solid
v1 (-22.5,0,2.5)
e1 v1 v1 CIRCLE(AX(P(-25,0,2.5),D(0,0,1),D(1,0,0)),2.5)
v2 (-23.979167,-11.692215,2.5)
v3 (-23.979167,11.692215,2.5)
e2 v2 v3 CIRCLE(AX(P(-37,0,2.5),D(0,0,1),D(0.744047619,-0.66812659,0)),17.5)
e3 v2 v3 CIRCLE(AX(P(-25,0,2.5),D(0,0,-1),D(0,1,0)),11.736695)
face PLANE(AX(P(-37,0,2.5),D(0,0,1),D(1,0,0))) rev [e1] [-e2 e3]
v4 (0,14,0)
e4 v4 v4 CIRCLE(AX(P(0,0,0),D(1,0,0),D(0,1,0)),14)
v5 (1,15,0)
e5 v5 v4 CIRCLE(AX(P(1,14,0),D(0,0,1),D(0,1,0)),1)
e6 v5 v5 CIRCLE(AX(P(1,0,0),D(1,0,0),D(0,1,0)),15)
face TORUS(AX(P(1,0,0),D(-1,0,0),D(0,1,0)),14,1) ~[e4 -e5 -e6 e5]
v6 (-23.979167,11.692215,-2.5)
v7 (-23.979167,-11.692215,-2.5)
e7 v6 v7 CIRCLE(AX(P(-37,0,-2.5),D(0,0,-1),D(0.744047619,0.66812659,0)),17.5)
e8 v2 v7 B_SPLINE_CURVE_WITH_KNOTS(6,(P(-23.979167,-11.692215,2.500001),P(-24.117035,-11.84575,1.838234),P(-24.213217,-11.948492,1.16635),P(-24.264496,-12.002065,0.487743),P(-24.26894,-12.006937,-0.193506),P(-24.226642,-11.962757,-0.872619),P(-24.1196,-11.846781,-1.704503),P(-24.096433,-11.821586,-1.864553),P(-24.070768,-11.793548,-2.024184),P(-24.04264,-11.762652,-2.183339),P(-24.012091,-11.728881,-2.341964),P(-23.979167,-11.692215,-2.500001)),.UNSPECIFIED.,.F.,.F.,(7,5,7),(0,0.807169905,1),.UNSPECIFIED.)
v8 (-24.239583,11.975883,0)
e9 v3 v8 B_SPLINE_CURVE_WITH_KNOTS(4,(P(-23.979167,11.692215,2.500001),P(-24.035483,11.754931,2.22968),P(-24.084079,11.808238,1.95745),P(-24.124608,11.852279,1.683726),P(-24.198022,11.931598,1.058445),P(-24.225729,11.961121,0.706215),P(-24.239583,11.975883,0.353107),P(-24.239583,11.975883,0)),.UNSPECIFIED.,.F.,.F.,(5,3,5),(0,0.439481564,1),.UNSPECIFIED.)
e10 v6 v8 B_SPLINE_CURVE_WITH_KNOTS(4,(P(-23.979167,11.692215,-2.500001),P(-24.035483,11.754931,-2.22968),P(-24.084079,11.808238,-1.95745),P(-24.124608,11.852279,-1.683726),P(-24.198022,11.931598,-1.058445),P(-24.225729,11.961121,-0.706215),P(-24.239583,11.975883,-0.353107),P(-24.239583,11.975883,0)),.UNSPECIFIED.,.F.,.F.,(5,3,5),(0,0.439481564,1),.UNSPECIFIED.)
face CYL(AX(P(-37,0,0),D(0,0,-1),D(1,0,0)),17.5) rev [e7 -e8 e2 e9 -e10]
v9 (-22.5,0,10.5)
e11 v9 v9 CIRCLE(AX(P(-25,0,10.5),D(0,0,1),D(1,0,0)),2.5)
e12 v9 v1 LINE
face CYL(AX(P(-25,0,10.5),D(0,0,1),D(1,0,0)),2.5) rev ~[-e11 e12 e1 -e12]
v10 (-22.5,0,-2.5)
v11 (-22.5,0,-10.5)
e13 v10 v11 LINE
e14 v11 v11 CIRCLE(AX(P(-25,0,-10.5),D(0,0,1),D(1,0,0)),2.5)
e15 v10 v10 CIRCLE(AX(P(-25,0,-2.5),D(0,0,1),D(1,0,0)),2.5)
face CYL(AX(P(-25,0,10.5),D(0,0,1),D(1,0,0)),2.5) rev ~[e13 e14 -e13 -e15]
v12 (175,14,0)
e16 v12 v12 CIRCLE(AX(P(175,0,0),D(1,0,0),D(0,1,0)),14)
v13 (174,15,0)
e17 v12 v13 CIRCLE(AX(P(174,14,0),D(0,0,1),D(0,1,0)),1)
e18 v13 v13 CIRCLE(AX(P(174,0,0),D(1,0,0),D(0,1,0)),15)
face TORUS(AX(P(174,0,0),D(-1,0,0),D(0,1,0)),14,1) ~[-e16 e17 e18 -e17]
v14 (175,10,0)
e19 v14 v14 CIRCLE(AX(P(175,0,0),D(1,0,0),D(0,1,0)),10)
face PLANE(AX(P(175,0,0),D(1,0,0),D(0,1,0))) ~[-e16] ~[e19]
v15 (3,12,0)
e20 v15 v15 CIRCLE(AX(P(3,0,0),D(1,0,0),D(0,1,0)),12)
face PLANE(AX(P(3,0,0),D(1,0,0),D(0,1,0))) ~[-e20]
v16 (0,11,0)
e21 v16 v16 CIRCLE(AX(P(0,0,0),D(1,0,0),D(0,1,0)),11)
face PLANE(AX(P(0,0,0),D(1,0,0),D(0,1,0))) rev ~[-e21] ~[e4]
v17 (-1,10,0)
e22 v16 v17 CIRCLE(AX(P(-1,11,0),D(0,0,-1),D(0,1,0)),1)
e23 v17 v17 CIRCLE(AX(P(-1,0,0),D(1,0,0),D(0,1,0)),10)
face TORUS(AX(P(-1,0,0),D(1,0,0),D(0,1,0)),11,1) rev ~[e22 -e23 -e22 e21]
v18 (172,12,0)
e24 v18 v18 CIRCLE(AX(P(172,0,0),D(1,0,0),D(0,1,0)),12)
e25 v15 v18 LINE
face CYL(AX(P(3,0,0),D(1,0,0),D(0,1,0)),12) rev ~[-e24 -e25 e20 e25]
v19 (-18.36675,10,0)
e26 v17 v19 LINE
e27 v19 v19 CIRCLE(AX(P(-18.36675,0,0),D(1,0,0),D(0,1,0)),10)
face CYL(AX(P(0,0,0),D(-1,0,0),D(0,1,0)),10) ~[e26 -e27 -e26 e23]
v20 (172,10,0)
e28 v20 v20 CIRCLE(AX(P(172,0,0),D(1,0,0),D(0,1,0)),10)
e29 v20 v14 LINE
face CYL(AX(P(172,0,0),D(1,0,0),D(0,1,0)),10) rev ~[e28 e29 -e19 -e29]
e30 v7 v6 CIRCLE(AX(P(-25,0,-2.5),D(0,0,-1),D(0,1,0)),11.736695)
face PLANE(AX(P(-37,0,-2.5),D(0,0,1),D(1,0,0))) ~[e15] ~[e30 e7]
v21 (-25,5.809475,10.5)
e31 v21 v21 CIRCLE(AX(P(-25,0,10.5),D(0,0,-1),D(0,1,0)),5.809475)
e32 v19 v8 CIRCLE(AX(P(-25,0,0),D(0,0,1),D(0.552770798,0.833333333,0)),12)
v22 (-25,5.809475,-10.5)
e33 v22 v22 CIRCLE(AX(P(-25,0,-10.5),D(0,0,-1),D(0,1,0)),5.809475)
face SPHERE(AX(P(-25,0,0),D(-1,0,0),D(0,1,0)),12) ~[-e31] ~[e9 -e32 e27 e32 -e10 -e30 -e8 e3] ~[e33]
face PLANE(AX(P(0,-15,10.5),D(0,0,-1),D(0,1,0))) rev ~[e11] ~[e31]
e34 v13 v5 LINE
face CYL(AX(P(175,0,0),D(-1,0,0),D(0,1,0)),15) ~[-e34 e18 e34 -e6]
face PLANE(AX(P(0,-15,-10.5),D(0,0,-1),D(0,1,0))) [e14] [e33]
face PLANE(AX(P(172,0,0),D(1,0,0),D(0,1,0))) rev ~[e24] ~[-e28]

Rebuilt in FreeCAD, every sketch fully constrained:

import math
import FreeCAD as App
import Part
import Sketcher


def edges_at(feature, points):
    """Names of the edges that pass closest to the given points."""
    edges = feature.Shape.Edges
    near = lambda p: min(range(len(edges)), key=lambda i: edges[i].distToShape(Part.Vertex(*p))[0])
    return sorted({f"Edge{near(p) + 1}" for p in points})

doc = App.newDocument("Part")
body = doc.addObject("PartDesign::Body", "Body")

# Sketch on XY plane
sketch1 = body.newObject("Sketcher::SketchObject", "Sketch")
sketch1.AttachmentSupport = (doc.getObject("XY_Plane"), [""])
sketch1.MapMode = "FlatFace"
sketch1.addGeometry(Part.LineSegment(App.Vector(172, 10, 0), App.Vector(175, 10, 0)), False)
sketch1.addGeometry(Part.LineSegment(App.Vector(175, 10, 0), App.Vector(175, 15, 0)), False)
sketch1.addGeometry(Part.LineSegment(App.Vector(175, 15, 0), App.Vector(0, 15, 0)), False)
sketch1.addGeometry(Part.LineSegment(App.Vector(0, 15, 0), App.Vector(0, 10, 0)), False)
sketch1.addGeometry(Part.LineSegment(App.Vector(0, 10, 0), App.Vector(-18.4, 10, 0)), False)
sketch1.addGeometry(Part.ArcOfCircle(Part.Circle(App.Vector(-25, 0, 0), App.Vector(0, 0, 1), 12), math.radians(56), math.radians(180)), False)
sketch1.addGeometry(Part.LineSegment(App.Vector(-37, 0, 0), App.Vector(3, 0, 0)), False)
sketch1.addGeometry(Part.LineSegment(App.Vector(3, 0, 0), App.Vector(3, 12, 0)), False)
sketch1.addGeometry(Part.LineSegment(App.Vector(3, 12, 0), App.Vector(172, 12, 0)), False)
sketch1.addGeometry(Part.LineSegment(App.Vector(172, 12, 0), App.Vector(172, 10, 0)), False)
sketch1.addConstraint(Sketcher.Constraint("Coincident", 0, 2, 1, 1))
sketch1.addConstraint(Sketcher.Constraint("Coincident", 1, 2, 2, 1))
sketch1.addConstraint(Sketcher.Constraint("Coincident", 2, 2, 3, 1))
sketch1.addConstraint(Sketcher.Constraint("Coincident", 3, 2, 4, 1))
sketch1.addConstraint(Sketcher.Constraint("Coincident", 4, 2, 5, 1))
sketch1.addConstraint(Sketcher.Constraint("Coincident", 5, 2, 6, 1))
sketch1.addConstraint(Sketcher.Constraint("Coincident", 6, 2, 7, 1))
sketch1.addConstraint(Sketcher.Constraint("Coincident", 7, 2, 8, 1))
sketch1.addConstraint(Sketcher.Constraint("Coincident", 8, 2, 9, 1))
sketch1.addConstraint(Sketcher.Constraint("Coincident", 9, 2, 0, 1))
sketch1.addConstraint(Sketcher.Constraint("Horizontal", 0))
sketch1.addConstraint(Sketcher.Constraint("Vertical", 1))
sketch1.addConstraint(Sketcher.Constraint("Horizontal", 2))
sketch1.addConstraint(Sketcher.Constraint("Vertical", 3))
sketch1.addConstraint(Sketcher.Constraint("Horizontal", 4))
sketch1.addConstraint(Sketcher.Constraint("Horizontal", 6))
sketch1.addConstraint(Sketcher.Constraint("Vertical", 7))
sketch1.addConstraint(Sketcher.Constraint("Horizontal", 8))
sketch1.addConstraint(Sketcher.Constraint("Vertical", 9))
sketch1.addConstraint(Sketcher.Constraint("PointOnObject", 5, 3, -1))
sketch1.addConstraint(Sketcher.Constraint("PointOnObject", 2, 2, -2))
sketch1.addConstraint(Sketcher.Constraint("PointOnObject", 5, 2, -1))
sketch1.addConstraint(Sketcher.Constraint("Horizontal", 0, 2, 3, 2))
sketch1.addConstraint(Sketcher.Constraint("Radius", 5, 12.0))
sketch1.addConstraint(Sketcher.Constraint("DistanceX", 0, 1, 0, 2, 3.0))
sketch1.addConstraint(Sketcher.Constraint("DistanceX", 2, 2, 2, 1, 175.0))
sketch1.addConstraint(Sketcher.Constraint("DistanceX", 6, 1, 6, 2, 40.0))
sketch1.addConstraint(Sketcher.Constraint("DistanceX", 8, 1, 8, 2, 169.0))
sketch1.addConstraint(Sketcher.Constraint("DistanceY", 1, 1, 1, 2, 5.0))
sketch1.addConstraint(Sketcher.Constraint("DistanceY", 7, 1, 7, 2, 12.0))
sketch1.addConstraint(Sketcher.Constraint("DistanceY", 9, 2, 9, 1, 2.0))
revolution = body.newObject("PartDesign::Revolution", "Revolution")
revolution.Profile = sketch1
revolution.ReferenceAxis = (sketch1, ["H_Axis"])
revolution.Angle = 360

# Sketch on YZ plane
sketch2 = body.newObject("Sketcher::SketchObject", "Sketch001")
sketch2.AttachmentSupport = (doc.getObject("YZ_Plane"), [""])
sketch2.MapMode = "FlatFace"
sketch2.addGeometry(Part.LineSegment(App.Vector(38, -38, 0), App.Vector(-38, -38, 0)), False)
sketch2.addGeometry(Part.LineSegment(App.Vector(-38, -38, 0), App.Vector(-38, 38, 0)), False)
sketch2.addGeometry(Part.LineSegment(App.Vector(-38, 38, 0), App.Vector(38, 38, 0)), False)
sketch2.addGeometry(Part.LineSegment(App.Vector(38, 38, 0), App.Vector(38, -38, 0)), False)
sketch2.addGeometry(Part.LineSegment(App.Vector(-15, 10, 0), App.Vector(-15, -10, 0)), False)
sketch2.addGeometry(Part.LineSegment(App.Vector(-15, -10, 0), App.Vector(15, -10, 0)), False)
sketch2.addGeometry(Part.LineSegment(App.Vector(15, -10, 0), App.Vector(15, 10, 0)), False)
sketch2.addGeometry(Part.LineSegment(App.Vector(15, 10, 0), App.Vector(-15, 10, 0)), False)
sketch2.addConstraint(Sketcher.Constraint("Coincident", 0, 2, 1, 1))
sketch2.addConstraint(Sketcher.Constraint("Coincident", 1, 2, 2, 1))
sketch2.addConstraint(Sketcher.Constraint("Coincident", 2, 2, 3, 1))
sketch2.addConstraint(Sketcher.Constraint("Coincident", 3, 2, 0, 1))
sketch2.addConstraint(Sketcher.Constraint("Coincident", 4, 2, 5, 1))
sketch2.addConstraint(Sketcher.Constraint("Coincident", 5, 2, 6, 1))
sketch2.addConstraint(Sketcher.Constraint("Coincident", 6, 2, 7, 1))
sketch2.addConstraint(Sketcher.Constraint("Coincident", 7, 2, 4, 1))
sketch2.addConstraint(Sketcher.Constraint("Horizontal", 0))
sketch2.addConstraint(Sketcher.Constraint("Vertical", 1))
sketch2.addConstraint(Sketcher.Constraint("Horizontal", 2))
sketch2.addConstraint(Sketcher.Constraint("Vertical", 3))
sketch2.addConstraint(Sketcher.Constraint("Vertical", 4))
sketch2.addConstraint(Sketcher.Constraint("Horizontal", 5))
sketch2.addConstraint(Sketcher.Constraint("Vertical", 6))
sketch2.addConstraint(Sketcher.Constraint("Horizontal", 7))
sketch2.addConstraint(Sketcher.Constraint("Symmetric", 0, 2, 2, 2, -1, 1))
sketch2.addConstraint(Sketcher.Constraint("Symmetric", 4, 2, 6, 2, -1, 1))
sketch2.addConstraint(Sketcher.Constraint("Equal", 2, 1))
sketch2.addConstraint(Sketcher.Constraint("DistanceX", 5, 1, 5, 2, 30.0))
sketch2.addConstraint(Sketcher.Constraint("DistanceY", 4, 2, 4, 1, 21.0))
sketch2.addConstraint(Sketcher.Constraint("DistanceX", 0, 2, 0, 1, 75.24))
pocket1 = body.newObject("PartDesign::Pocket", "Pocket")
pocket1.Profile = sketch2
pocket1.Length = 40

# Sketch on XZ plane
sketch3 = body.newObject("Sketcher::SketchObject", "Sketch002")
sketch3.AttachmentSupport = (doc.getObject("XZ_Plane"), [""])
sketch3.MapMode = "FlatFace"
sketch3.addGeometry(Part.LineSegment(App.Vector(-37, -2, 0), App.Vector(-37, 2, 0)), False)
sketch3.addGeometry(Part.LineSegment(App.Vector(-37, 2, 0), App.Vector(-20, 2, 0)), False)
sketch3.addGeometry(Part.LineSegment(App.Vector(-20, 2, 0), App.Vector(-20, -2, 0)), False)
sketch3.addGeometry(Part.LineSegment(App.Vector(-20, -2, 0), App.Vector(-37, -2, 0)), False)
sketch3.addGeometry(Part.LineSegment(App.Vector(-37, -2, 0), App.Vector(-37, 2, 0)), True)  # axis
sketch3.addConstraint(Sketcher.Constraint("Coincident", 0, 2, 1, 1))
sketch3.addConstraint(Sketcher.Constraint("Coincident", 1, 2, 2, 1))
sketch3.addConstraint(Sketcher.Constraint("Coincident", 2, 2, 3, 1))
sketch3.addConstraint(Sketcher.Constraint("Coincident", 3, 2, 0, 1))
sketch3.addConstraint(Sketcher.Constraint("Vertical", 0))
sketch3.addConstraint(Sketcher.Constraint("Horizontal", 1))
sketch3.addConstraint(Sketcher.Constraint("Vertical", 2))
sketch3.addConstraint(Sketcher.Constraint("Horizontal", 3))
sketch3.addConstraint(Sketcher.Constraint("Vertical", 4))
sketch3.addConstraint(Sketcher.Constraint("Coincident", 4, 1, 3, 2))
sketch3.addConstraint(Sketcher.Constraint("Horizontal", 1, 2, 4, 2))
sketch3.addConstraint(Sketcher.Constraint("DistanceY", 0, 1, 0, 2, 5.0))
sketch3.addConstraint(Sketcher.Constraint("DistanceX", 1, 1, 1, 2, 17.5))
sketch3.addConstraint(Sketcher.Constraint("DistanceX", 0, 2, -1, 1, 37.0))
sketch3.addConstraint(Sketcher.Constraint("DistanceY", -1, 1, 0, 2, 2.5))
groove = body.newObject("PartDesign::Groove", "Groove")
groove.Profile = sketch3
groove.ReferenceAxis = (sketch3, ["Axis0"])
groove.Angle = 360
doc.recompute()

fillet = body.newObject("PartDesign::Fillet", "Fillet")
fillet.Base = (groove, edges_at(groove, [
    (175, -15, 0),
    (0, -15, 0),
    (0, -10, 0),
    (0, -15, 0),
]))
fillet.Radius = 1

# Sketch on XY plane
sketch4 = body.newObject("Sketcher::SketchObject", "Sketch003")
sketch4.AttachmentSupport = (doc.getObject("XY_Plane"), [""])
sketch4.MapMode = "FlatFace"
sketch4.AttachmentOffset = App.Placement(App.Vector(0, 0, 10.5), App.Rotation())
sketch4.addGeometry(Part.Circle(App.Vector(-25, 0, 0), App.Vector(0, 0, 1), 2.5), False)
sketch4.addConstraint(Sketcher.Constraint("PointOnObject", 0, 3, -1))
sketch4.addConstraint(Sketcher.Constraint("Diameter", 0, 5.0))
sketch4.addConstraint(Sketcher.Constraint("DistanceX", 0, 3, -1, 1, 25.0))
pocket2 = body.newObject("PartDesign::Pocket", "Pocket001")
pocket2.Profile = sketch4
pocket2.Type = "ThroughAll"
pocket2.Midplane = True

doc.recompute()
